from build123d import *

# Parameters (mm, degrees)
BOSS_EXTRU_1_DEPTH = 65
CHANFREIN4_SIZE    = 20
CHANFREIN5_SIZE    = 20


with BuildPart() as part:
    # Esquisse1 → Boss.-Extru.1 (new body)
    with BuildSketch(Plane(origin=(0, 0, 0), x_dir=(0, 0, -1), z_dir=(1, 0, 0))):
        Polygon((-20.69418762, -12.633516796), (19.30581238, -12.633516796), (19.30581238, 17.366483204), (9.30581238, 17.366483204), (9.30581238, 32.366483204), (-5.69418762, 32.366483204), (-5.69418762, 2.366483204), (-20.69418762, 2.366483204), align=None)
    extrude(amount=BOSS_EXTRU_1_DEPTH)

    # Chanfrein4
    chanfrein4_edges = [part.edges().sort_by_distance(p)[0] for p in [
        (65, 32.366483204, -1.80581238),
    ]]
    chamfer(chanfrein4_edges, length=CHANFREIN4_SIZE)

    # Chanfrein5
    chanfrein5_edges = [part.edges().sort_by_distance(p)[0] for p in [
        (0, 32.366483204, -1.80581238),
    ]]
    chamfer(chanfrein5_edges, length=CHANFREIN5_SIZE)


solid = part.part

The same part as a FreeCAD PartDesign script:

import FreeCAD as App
import Part
import Sketcher

V = App.Vector


def edges_at(feature, points):
    """Names of the edges that pass closest to the given points."""
    edges = feature.Shape.Edges
    near = lambda p: min(range(len(edges)), key=lambda i: edges[i].distToShape(Part.Vertex(*p))[0])
    return sorted({f"Edge{near(p) + 1}" for p in points})

doc = App.newDocument("Part")
body = doc.addObject("PartDesign::Body", "Body")

sketch1 = doc.addObject("Sketcher::SketchObject", "Sketch")
body.addObject(sketch1)
sketch1.AttachmentSupport = (doc.YZ_Plane, [""])
sketch1.MapMode = "FlatFace"
sketch1.addGeometry([
    Part.LineSegment(V(-13, 21, 0), V(-13, -19, 0)),
    Part.LineSegment(V(-13, -19, 0), V(17, -19, 0)),
    Part.LineSegment(V(17, -19, 0), V(17, -9, 0)),
    Part.LineSegment(V(17, -9, 0), V(32, -9, 0)),
    Part.LineSegment(V(32, -9, 0), V(32, 6, 0)),
    Part.LineSegment(V(32, 6, 0), V(2, 6, 0)),
    Part.LineSegment(V(2, 6, 0), V(2, 21, 0)),
    Part.LineSegment(V(2, 21, 0), V(-13, 21, 0)),
], False)
sketch1.addConstraint([
    Sketcher.Constraint("Coincident", 0, 2, 1, 1),
    Sketcher.Constraint("Coincident", 1, 2, 2, 1),
    Sketcher.Constraint("Coincident", 2, 2, 3, 1),
    Sketcher.Constraint("Coincident", 3, 2, 4, 1),
    Sketcher.Constraint("Coincident", 4, 2, 5, 1),
    Sketcher.Constraint("Coincident", 5, 2, 6, 1),
    Sketcher.Constraint("Coincident", 6, 2, 7, 1),
    Sketcher.Constraint("Coincident", 7, 2, 0, 1),
    Sketcher.Constraint("Vertical", 0),
    Sketcher.Constraint("Horizontal", 1),
    Sketcher.Constraint("Vertical", 2),
    Sketcher.Constraint("Horizontal", 3),
    Sketcher.Constraint("Vertical", 4),
    Sketcher.Constraint("Horizontal", 5),
    Sketcher.Constraint("Vertical", 6),
    Sketcher.Constraint("Horizontal", 7),
    Sketcher.Constraint("Equal", 1, 5),
    Sketcher.Constraint("Equal", 7, 4),
    Sketcher.Constraint("Equal", 4, 6),
    Sketcher.Constraint("DistanceX", 1, 1, 1, 2, 30.0),
    Sketcher.Constraint("DistanceX", 3, 1, 3, 2, 15.0),
    Sketcher.Constraint("DistanceY", 0, 2, 0, 1, 40.0),
    Sketcher.Constraint("DistanceX", 0, 2, -1, 1, 12.633517),
    Sketcher.Constraint("DistanceY", 0, 2, -1, 1, 19.305812),
])
pad1 = doc.addObject("PartDesign::Pad", "Pad")
body.addObject(pad1)
pad1.Profile = sketch1
pad1.Length = 65
doc.recompute()

chamfer = doc.addObject("PartDesign::Chamfer", "Chamfer")
body.addObject(chamfer)
chamfer.Base = (pad1, edges_at(pad1, [(65, 32.366, -1.806)]))
chamfer.Size = 20
doc.recompute()

chamfer2 = doc.addObject("PartDesign::Chamfer", "Chamfer001")
body.addObject(chamfer2)
chamfer2.Base = (chamfer, edges_at(chamfer, [(0, 32.366, -1.806)]))
chamfer2.Size = 20

doc.recompute()
